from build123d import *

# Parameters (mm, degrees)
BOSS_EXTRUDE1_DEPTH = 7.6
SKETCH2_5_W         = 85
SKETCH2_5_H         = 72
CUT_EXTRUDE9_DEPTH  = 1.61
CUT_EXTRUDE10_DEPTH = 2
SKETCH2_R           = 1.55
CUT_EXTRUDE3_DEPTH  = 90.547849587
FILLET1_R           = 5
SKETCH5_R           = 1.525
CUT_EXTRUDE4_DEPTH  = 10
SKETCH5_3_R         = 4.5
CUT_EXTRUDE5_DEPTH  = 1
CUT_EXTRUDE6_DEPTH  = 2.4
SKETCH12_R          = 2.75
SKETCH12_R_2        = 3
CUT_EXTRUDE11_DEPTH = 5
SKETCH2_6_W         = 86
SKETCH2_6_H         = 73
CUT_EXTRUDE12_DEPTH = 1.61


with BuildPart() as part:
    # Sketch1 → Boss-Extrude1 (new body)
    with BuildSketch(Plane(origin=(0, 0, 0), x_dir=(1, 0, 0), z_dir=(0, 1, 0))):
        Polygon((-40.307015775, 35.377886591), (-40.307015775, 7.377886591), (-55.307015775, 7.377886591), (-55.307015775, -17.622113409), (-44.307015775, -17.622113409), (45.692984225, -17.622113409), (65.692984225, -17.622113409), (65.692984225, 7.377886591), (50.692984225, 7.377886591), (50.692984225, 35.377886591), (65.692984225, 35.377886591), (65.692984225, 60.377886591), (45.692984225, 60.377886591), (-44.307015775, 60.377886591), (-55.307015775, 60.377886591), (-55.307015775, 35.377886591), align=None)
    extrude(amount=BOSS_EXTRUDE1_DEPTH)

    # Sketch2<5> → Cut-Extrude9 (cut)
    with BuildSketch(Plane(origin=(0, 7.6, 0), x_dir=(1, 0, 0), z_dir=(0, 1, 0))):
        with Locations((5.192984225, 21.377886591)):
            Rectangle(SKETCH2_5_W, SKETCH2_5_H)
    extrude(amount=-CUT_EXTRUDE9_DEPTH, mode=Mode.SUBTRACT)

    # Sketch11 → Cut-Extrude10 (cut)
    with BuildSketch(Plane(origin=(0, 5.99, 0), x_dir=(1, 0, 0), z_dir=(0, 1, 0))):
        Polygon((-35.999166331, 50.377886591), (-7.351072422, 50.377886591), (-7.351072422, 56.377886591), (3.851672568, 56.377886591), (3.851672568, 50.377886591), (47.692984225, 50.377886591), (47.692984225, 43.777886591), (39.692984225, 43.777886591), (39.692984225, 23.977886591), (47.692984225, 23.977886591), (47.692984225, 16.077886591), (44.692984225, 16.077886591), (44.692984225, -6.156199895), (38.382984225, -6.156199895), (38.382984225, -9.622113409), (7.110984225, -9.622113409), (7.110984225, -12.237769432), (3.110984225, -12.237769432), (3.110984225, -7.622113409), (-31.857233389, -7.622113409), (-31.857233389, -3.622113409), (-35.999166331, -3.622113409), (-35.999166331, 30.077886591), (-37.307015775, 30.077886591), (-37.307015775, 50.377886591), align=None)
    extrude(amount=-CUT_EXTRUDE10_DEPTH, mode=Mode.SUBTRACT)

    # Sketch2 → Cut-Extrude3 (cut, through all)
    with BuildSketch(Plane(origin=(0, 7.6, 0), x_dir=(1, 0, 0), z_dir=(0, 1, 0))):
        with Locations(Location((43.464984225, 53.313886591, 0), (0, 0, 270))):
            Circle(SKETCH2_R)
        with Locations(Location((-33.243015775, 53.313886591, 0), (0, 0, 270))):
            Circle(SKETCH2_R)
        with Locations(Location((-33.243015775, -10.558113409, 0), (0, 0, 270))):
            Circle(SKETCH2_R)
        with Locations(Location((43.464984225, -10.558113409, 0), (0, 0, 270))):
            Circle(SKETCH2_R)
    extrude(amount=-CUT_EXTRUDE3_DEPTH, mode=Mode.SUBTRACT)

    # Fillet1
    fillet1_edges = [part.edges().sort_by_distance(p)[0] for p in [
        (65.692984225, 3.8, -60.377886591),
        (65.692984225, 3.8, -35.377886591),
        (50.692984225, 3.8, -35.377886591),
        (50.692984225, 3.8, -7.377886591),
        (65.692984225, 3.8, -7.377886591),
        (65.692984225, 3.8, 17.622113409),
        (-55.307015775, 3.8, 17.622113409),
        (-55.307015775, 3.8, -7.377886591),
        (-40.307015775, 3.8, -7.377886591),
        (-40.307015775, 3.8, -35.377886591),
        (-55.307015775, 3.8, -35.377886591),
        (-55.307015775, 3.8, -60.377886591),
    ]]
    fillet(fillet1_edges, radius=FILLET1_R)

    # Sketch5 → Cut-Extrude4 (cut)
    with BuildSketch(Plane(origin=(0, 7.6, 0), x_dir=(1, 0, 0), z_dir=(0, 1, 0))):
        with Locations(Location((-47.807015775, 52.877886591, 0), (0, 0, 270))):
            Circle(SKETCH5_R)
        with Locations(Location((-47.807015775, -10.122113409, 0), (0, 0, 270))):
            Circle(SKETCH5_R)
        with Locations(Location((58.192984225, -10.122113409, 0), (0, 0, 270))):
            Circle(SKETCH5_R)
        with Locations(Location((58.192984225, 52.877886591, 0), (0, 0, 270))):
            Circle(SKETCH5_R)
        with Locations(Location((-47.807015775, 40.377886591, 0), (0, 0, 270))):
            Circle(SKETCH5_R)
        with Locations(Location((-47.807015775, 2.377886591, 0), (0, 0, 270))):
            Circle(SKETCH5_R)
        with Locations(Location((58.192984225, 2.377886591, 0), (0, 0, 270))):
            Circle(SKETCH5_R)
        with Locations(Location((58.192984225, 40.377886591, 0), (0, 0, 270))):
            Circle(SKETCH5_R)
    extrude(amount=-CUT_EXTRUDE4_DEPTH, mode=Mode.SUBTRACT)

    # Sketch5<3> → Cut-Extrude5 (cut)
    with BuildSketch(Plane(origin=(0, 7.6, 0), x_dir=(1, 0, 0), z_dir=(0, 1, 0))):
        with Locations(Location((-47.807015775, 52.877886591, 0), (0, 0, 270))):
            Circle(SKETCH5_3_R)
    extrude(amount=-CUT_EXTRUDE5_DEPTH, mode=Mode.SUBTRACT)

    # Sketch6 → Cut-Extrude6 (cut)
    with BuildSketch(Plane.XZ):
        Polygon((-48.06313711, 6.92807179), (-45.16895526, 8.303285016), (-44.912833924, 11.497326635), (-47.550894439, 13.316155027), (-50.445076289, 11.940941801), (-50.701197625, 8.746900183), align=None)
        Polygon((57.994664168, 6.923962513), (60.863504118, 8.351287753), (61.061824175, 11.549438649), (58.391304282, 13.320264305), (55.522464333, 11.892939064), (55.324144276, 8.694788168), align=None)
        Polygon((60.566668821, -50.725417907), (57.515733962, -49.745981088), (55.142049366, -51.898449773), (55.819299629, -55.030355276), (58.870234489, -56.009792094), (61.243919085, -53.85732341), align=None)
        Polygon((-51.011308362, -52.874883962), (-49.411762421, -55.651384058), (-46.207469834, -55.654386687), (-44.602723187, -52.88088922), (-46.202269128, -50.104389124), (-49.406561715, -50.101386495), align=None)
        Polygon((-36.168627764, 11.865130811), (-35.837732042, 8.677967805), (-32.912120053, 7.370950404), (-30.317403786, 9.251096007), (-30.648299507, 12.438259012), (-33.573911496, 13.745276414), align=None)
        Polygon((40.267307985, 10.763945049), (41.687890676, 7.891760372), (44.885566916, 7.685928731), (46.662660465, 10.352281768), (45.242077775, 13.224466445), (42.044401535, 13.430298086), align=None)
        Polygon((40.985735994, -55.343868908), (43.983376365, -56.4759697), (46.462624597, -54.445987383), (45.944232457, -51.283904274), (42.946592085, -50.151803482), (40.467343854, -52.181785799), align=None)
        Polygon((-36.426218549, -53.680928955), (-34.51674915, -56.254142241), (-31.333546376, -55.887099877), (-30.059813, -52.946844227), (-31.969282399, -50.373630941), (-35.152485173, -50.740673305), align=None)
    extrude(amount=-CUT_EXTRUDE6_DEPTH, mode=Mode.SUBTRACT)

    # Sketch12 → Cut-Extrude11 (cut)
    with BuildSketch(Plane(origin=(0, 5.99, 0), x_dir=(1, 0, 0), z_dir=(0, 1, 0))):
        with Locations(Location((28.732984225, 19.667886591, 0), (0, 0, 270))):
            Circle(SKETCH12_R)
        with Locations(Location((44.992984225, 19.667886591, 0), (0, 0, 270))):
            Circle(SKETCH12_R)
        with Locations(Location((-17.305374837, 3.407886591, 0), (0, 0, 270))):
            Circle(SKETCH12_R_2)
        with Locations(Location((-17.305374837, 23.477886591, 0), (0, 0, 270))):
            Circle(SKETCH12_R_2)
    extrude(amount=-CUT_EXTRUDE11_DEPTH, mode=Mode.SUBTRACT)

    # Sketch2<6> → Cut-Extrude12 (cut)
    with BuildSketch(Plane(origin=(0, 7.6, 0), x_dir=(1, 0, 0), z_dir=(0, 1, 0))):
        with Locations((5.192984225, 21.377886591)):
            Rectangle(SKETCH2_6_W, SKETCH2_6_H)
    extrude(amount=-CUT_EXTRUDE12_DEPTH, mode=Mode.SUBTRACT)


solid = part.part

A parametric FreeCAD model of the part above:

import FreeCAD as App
import Part
import Sketcher
from FreeCAD import Vector


def edges_at(feature, points):
    """Names of the edges that pass closest to the given points."""
    edges = feature.Shape.Edges
    near = lambda p: min(range(len(edges)), key=lambda i: edges[i].distToShape(Part.Vertex(*p))[0])
    return sorted({f"Edge{near(p) + 1}" for p in points})

doc = App.newDocument("Part")
body = doc.addObject("PartDesign::Body", "Body")

# Sketch on XZ plane
sketch1 = doc.addObject("Sketcher::SketchObject", "Sketch")
body.addObject(sketch1)
sketch1.AttachmentSupport = (doc.XZ_Plane, [""])
sketch1.MapMode = "FlatFace"
sketch1.addGeometry(Part.LineSegment(Vector(-40.307016, -35.377887, 0), Vector(-40.307016, -7.377887, 0)), False)
sketch1.addGeometry(Part.LineSegment(Vector(-40.307016, -7.377887, 0), Vector(-55.307016, -7.377887, 0)), False)
sketch1.addGeometry(Part.LineSegment(Vector(-55.307016, -7.377887, 0), Vector(-55.307016, 17.622113, 0)), False)
sketch1.addGeometry(Part.LineSegment(Vector(-55.307016, 17.622113, 0), Vector(65.692984, 17.622113, 0)), False)
sketch1.addGeometry(Part.LineSegment(Vector(65.692984, 17.622113, 0), Vector(65.692984, -7.377887, 0)), False)
sketch1.addGeometry(Part.LineSegment(Vector(65.692984, -7.377887, 0), Vector(50.692984, -7.377887, 0)), False)
sketch1.addGeometry(Part.LineSegment(Vector(50.692984, -7.377887, 0), Vector(50.692984, -35.377887, 0)), False)
sketch1.addGeometry(Part.LineSegment(Vector(50.692984, -35.377887, 0), Vector(65.692984, -35.377887, 0)), False)
sketch1.addGeometry(Part.LineSegment(Vector(65.692984, -35.377887, 0), Vector(65.692984, -60.377887, 0)), False)
sketch1.addGeometry(Part.LineSegment(Vector(65.692984, -60.377887, 0), Vector(-55.307016, -60.377887, 0)), False)
sketch1.addGeometry(Part.LineSegment(Vector(-55.307016, -60.377887, 0), Vector(-55.307016, -35.377887, 0)), False)
sketch1.addGeometry(Part.LineSegment(Vector(-55.307016, -35.377887, 0), Vector(-40.307016, -35.377887, 0)), False)
sketch1.addConstraint(Sketcher.Constraint("Coincident", 0, 2, 1, 1))
sketch1.addConstraint(Sketcher.Constraint("Coincident", 1, 2, 2, 1))
sketch1.addConstraint(Sketcher.Constraint("Coincident", 2, 2, 3, 1))
sketch1.addConstraint(Sketcher.Constraint("Coincident", 3, 2, 4, 1))
sketch1.addConstraint(Sketcher.Constraint("Coincident", 4, 2, 5, 1))
sketch1.addConstraint(Sketcher.Constraint("Coincident", 5, 2, 6, 1))
sketch1.addConstraint(Sketcher.Constraint("Coincident", 6, 2, 7, 1))
sketch1.addConstraint(Sketcher.Constraint("Coincident", 7, 2, 8, 1))
sketch1.addConstraint(Sketcher.Constraint("Coincident", 8, 2, 9, 1))
sketch1.addConstraint(Sketcher.Constraint("Coincident", 9, 2, 10, 1))
sketch1.addConstraint(Sketcher.Constraint("Coincident", 10, 2, 11, 1))
sketch1.addConstraint(Sketcher.Constraint("Coincident", 11, 2, 0, 1))
sketch1.addConstraint(Sketcher.Constraint("Vertical", 0))
sketch1.addConstraint(Sketcher.Constraint("Horizontal", 1))
sketch1.addConstraint(Sketcher.Constraint("Vertical", 2))
sketch1.addConstraint(Sketcher.Constraint("Horizontal", 3))
sketch1.addConstraint(Sketcher.Constraint("Vertical", 4))
sketch1.addConstraint(Sketcher.Constraint("Horizontal", 5))
sketch1.addConstraint(Sketcher.Constraint("Vertical", 6))
sketch1.addConstraint(Sketcher.Constraint("Horizontal", 7))
sketch1.addConstraint(Sketcher.Constraint("Vertical", 8))
sketch1.addConstraint(Sketcher.Constraint("Horizontal", 9))
sketch1.addConstraint(Sketcher.Constraint("Vertical", 10))
sketch1.addConstraint(Sketcher.Constraint("Horizontal", 11))
sketch1.addConstraint(Sketcher.Constraint("Horizontal", 1, 2, 4, 2))
sketch1.addConstraint(Sketcher.Constraint("Horizontal", 7, 2, 10, 2))
sketch1.addConstraint(Sketcher.Constraint("Vertical", 4, 2, 7, 2))
sketch1.addConstraint(Sketcher.Constraint("Vertical", 2, 2, 9, 2))
sketch1.addConstraint(Sketcher.Constraint("Equal", 1, 5))
sketch1.addConstraint(Sketcher.Constraint("Equal", 4, 8))
sketch1.addConstraint(Sketcher.Constraint("DistanceX", 1, 2, 1, 1, 15.0))
sketch1.addConstraint(Sketcher.Constraint("DistanceX", 3, 1, 3, 2, 121.0))
sketch1.addConstraint(Sketcher.Constraint("DistanceY", 0, 1, 0, 2, 28.0))
sketch1.addConstraint(Sketcher.Constraint("DistanceY", 2, 1, 2, 2, 25.0))
sketch1.addConstraint(Sketcher.Constraint("DistanceX", 0, 2, -1, 1, 40.307016))
sketch1.addConstraint(Sketcher.Constraint("DistanceY", 0, 2, -1, 1, 7.377887))
pad1 = doc.addObject("PartDesign::Pad", "Pad")
body.addObject(pad1)
pad1.Profile = sketch1
pad1.Length = 7.6
pad1.Reversed = True

# Sketch on XZ plane
sketch2 = doc.addObject("Sketcher::SketchObject", "Sketch001")
body.addObject(sketch2)
sketch2.AttachmentSupport = (doc.XZ_Plane, [""])
sketch2.MapMode = "FlatFace"
sketch2.AttachmentOffset = App.Placement(Vector(0, 0, -7.6), App.Rotation())
sketch2.addGeometry(Part.LineSegment(Vector(-37.307016, -57.377887, 0), Vector(-37.307016, 14.622113, 0)), False)
sketch2.addGeometry(Part.LineSegment(Vector(-37.307016, 14.622113, 0), Vector(47.692984, 14.622113, 0)), False)
sketch2.addGeometry(Part.LineSegment(Vector(47.692984, 14.622113, 0), Vector(47.692984, -57.377887, 0)), False)
sketch2.addGeometry(Part.LineSegment(Vector(47.692984, -57.377887, 0), Vector(-37.307016, -57.377887, 0)), False)
sketch2.addConstraint(Sketcher.Constraint("Coincident", 0, 2, 1, 1))
sketch2.addConstraint(Sketcher.Constraint("Coincident", 1, 2, 2, 1))
sketch2.addConstraint(Sketcher.Constraint("Coincident", 2, 2, 3, 1))
sketch2.addConstraint(Sketcher.Constraint("Coincident", 3, 2, 0, 1))
sketch2.addConstraint(Sketcher.Constraint("Vertical", 0))
sketch2.addConstraint(Sketcher.Constraint("Horizontal", 1))
sketch2.addConstraint(Sketcher.Constraint("Vertical", 2))
sketch2.addConstraint(Sketcher.Constraint("Horizontal", 3))
sketch2.addConstraint(Sketcher.Constraint("DistanceX", 1, 1, 1, 2, 85.0))
sketch2.addConstraint(Sketcher.Constraint("DistanceY", 0, 1, 0, 2, 72.0))
sketch2.addConstraint(Sketcher.Constraint("DistanceX", 0, 2, -1, 1, 37.307016))
sketch2.addConstraint(Sketcher.Constraint("DistanceY", -1, 1, 0, 2, 14.622113))
pocket1 = doc.addObject("PartDesign::Pocket", "Pocket")
body.addObject(pocket1)
pocket1.Profile = sketch2
pocket1.Length = 1.61
pocket1.Reversed = True

# Sketch on XZ plane
sketch3 = doc.addObject("Sketcher::SketchObject", "Sketch002")
body.addObject(sketch3)
sketch3.AttachmentSupport = (doc.XZ_Plane, [""])
sketch3.MapMode = "FlatFace"
sketch3.AttachmentOffset = App.Placement(Vector(0, 0, -5.99), App.Rotation())
sketch3.addGeometry(Part.LineSegment(Vector(-7.351072, -50.377887, 0), Vector(-37.307016, -50.377887, 0)), False)
sketch3.addGeometry(Part.LineSegment(Vector(-37.307016, -50.377887, 0), Vector(-37.307016, -30.077887, 0)), False)
sketch3.addGeometry(Part.LineSegment(Vector(-37.307016, -30.077887, 0), Vector(-35.999166, -30.077887, 0)), False)
sketch3.addGeometry(Part.LineSegment(Vector(-35.999166, -30.077887, 0), Vector(-35.999166, 3.622113, 0)), False)
sketch3.addGeometry(Part.LineSegment(Vector(-35.999166, 3.622113, 0), Vector(-31.857233, 3.622113, 0)), False)
sketch3.addGeometry(Part.LineSegment(Vector(-31.857233, 3.622113, 0), Vector(-31.857233, 7.622113, 0)), False)
sketch3.addGeometry(Part.LineSegment(Vector(-31.857233, 7.622113, 0), Vector(3.110984, 7.622113, 0)), False)
sketch3.addGeometry(Part.LineSegment(Vector(3.110984, 7.622113, 0), Vector(3.110984, 12.237769, 0)), False)
sketch3.addGeometry(Part.LineSegment(Vector(3.110984, 12.237769, 0), Vector(7.110984, 12.237769, 0)), False)
sketch3.addGeometry(Part.LineSegment(Vector(7.110984, 12.237769, 0), Vector(7.110984, 9.622113, 0)), False)
sketch3.addGeometry(Part.LineSegment(Vector(7.110984, 9.622113, 0), Vector(38.382984, 9.622113, 0)), False)
sketch3.addGeometry(Part.LineSegment(Vector(38.382984, 9.622113, 0), Vector(38.382984, 6.1562, 0)), False)
sketch3.addGeometry(Part.LineSegment(Vector(38.382984, 6.1562, 0), Vector(44.692984, 6.1562, 0)), False)
sketch3.addGeometry(Part.LineSegment(Vector(44.692984, 6.1562, 0), Vector(44.692984, -16.077887, 0)), False)
sketch3.addGeometry(Part.LineSegment(Vector(44.692984, -16.077887, 0), Vector(47.692984, -16.077887, 0)), False)
sketch3.addGeometry(Part.LineSegment(Vector(47.692984, -16.077887, 0), Vector(47.692984, -23.977887, 0)), False)
sketch3.addGeometry(Part.LineSegment(Vector(47.692984, -23.977887, 0), Vector(39.692984, -23.977887, 0)), False)
sketch3.addGeometry(Part.LineSegment(Vector(39.692984, -23.977887, 0), Vector(39.692984, -43.777887, 0)), False)
sketch3.addGeometry(Part.LineSegment(Vector(39.692984, -43.777887, 0), Vector(47.692984, -43.777887, 0)), False)
sketch3.addGeometry(Part.LineSegment(Vector(47.692984, -43.777887, 0), Vector(47.692984, -50.377887, 0)), False)
sketch3.addGeometry(Part.LineSegment(Vector(47.692984, -50.377887, 0), Vector(3.851673, -50.377887, 0)), False)
sketch3.addGeometry(Part.LineSegment(Vector(3.851673, -50.377887, 0), Vector(3.851673, -56.377887, 0)), False)
sketch3.addGeometry(Part.LineSegment(Vector(3.851673, -56.377887, 0), Vector(-7.351072, -56.377887, 0)), False)
sketch3.addGeometry(Part.LineSegment(Vector(-7.351072, -56.377887, 0), Vector(-7.351072, -50.377887, 0)), False)
sketch3.addConstraint(Sketcher.Constraint("Coincident", 0, 2, 1, 1))
sketch3.addConstraint(Sketcher.Constraint("Coincident", 1, 2, 2, 1))
sketch3.addConstraint(Sketcher.Constraint("Coincident", 2, 2, 3, 1))
sketch3.addConstraint(Sketcher.Constraint("Coincident", 3, 2, 4, 1))
sketch3.addConstraint(Sketcher.Constraint("Coincident", 4, 2, 5, 1))
sketch3.addConstraint(Sketcher.Constraint("Coincident", 5, 2, 6, 1))
sketch3.addConstraint(Sketcher.Constraint("Coincident", 6, 2, 7, 1))
sketch3.addConstraint(Sketcher.Constraint("Coincident", 7, 2, 8, 1))
sketch3.addConstraint(Sketcher.Constraint("Coincident", 8, 2, 9, 1))
sketch3.addConstraint(Sketcher.Constraint("Coincident", 9, 2, 10, 1))
sketch3.addConstraint(Sketcher.Constraint("Coincident", 10, 2, 11, 1))
sketch3.addConstraint(Sketcher.Constraint("Coincident", 11, 2, 12, 1))
sketch3.addConstraint(Sketcher.Constraint("Coincident", 12, 2, 13, 1))
sketch3.addConstraint(Sketcher.Constraint("Coincident", 13, 2, 14, 1))
sketch3.addConstraint(Sketcher.Constraint("Coincident", 14, 2, 15, 1))
sketch3.addConstraint(Sketcher.Constraint("Coincident", 15, 2, 16, 1))
sketch3.addConstraint(Sketcher.Constraint("Coincident", 16, 2, 17, 1))
sketch3.addConstraint(Sketcher.Constraint("Coincident", 17, 2, 18, 1))
sketch3.addConstraint(Sketcher.Constraint("Coincident", 18, 2, 19, 1))
sketch3.addConstraint(Sketcher.Constraint("Coincident", 19, 2, 20, 1))
sketch3.addConstraint(Sketcher.Constraint("Coincident", 20, 2, 21, 1))
sketch3.addConstraint(Sketcher.Constraint("Coincident", 21, 2, 22, 1))
sketch3.addConstraint(Sketcher.Constraint("Coincident", 22, 2, 23, 1))
sketch3.addConstraint(Sketcher.Constraint("Coincident", 23, 2, 0, 1))
sketch3.addConstraint(Sketcher.Constraint("Horizontal", 0))
sketch3.addConstraint(Sketcher.Constraint("Vertical", 1))
sketch3.addConstraint(Sketcher.Constraint("Horizontal", 2))
sketch3.addConstraint(Sketcher.Constraint("Vertical", 3))
sketch3.addConstraint(Sketcher.Constraint("Horizontal", 4))
sketch3.addConstraint(Sketcher.Constraint("Vertical", 5))
sketch3.addConstraint(Sketcher.Constraint("Horizontal", 6))
sketch3.addConstraint(Sketcher.Constraint("Vertical", 7))
sketch3.addConstraint(Sketcher.Constraint("Horizontal", 8))
sketch3.addConstraint(Sketcher.Constraint("Vertical", 9))
sketch3.addConstraint(Sketcher.Constraint("Horizontal", 10))
sketch3.addConstraint(Sketcher.Constraint("Vertical", 11))
sketch3.addConstraint(Sketcher.Constraint("Horizontal", 12))
sketch3.addConstraint(Sketcher.Constraint("Vertical", 13))
sketch3.addConstraint(Sketcher.Constraint("Horizontal", 14))
sketch3.addConstraint(Sketcher.Constraint("Vertical", 15))
sketch3.addConstraint(Sketcher.Constraint("Horizontal", 16))
sketch3.addConstraint(Sketcher.Constraint("Vertical", 17))
sketch3.addConstraint(Sketcher.Constraint("Horizontal", 18))
sketch3.addConstraint(Sketcher.Constraint("Vertical", 19))
sketch3.addConstraint(Sketcher.Constraint("Horizontal", 20))
sketch3.addConstraint(Sketcher.Constraint("Vertical", 21))
sketch3.addConstraint(Sketcher.Constraint("Horizontal", 22))
sketch3.addConstraint(Sketcher.Constraint("Vertical", 23))
sketch3.addConstraint(Sketcher.Constraint("Horizontal", 0, 2, 19, 2))
sketch3.addConstraint(Sketcher.Constraint("Vertical", 15, 2, 18, 2))
sketch3.addConstraint(Sketcher.Constraint("Equal", 8, 5))
sketch3.addConstraint(Sketcher.Constraint("DistanceX", 8, 1, 8, 2, 4.0))
sketch3.addConstraint(Sketcher.Constraint("DistanceX", 14, 1, 14, 2, 3.0))
sketch3.addConstraint(Sketcher.Constraint("DistanceX", 16, 2, 16, 1, 8.0))
sketch3.addConstraint(Sketcher.Constraint("DistanceY", 21, 2, 21, 1, 6.0))
sketch3.addConstraint(Sketcher.Constraint("DistanceY", 1, 1, 1, 2, 20.3))
sketch3.addConstraint(Sketcher.Constraint("DistanceY", 3, 1, 3, 2, 33.7))
sketch3.addConstraint(Sketcher.Constraint("DistanceY", 15, 2, 15, 1, 7.9))
sketch3.addConstraint(Sketcher.Constraint("DistanceY", 17, 2, 17, 1, 19.8))
sketch3.addConstraint(Sketcher.Constraint("DistanceY", 19, 2, 19, 1, 6.6))
sketch3.addConstraint(Sketcher.Constraint("DistanceY", 6, 2, 9, 2, 2.0))
sketch3.addConstraint(Sketcher.Constraint("DistanceX", 12, 1, 12, 2, 6.31))
sketch3.addConstraint(Sketcher.Constraint("DistanceX", 10, 1, 10, 2, 31.272))
sketch3.addConstraint(Sketcher.Constraint("DistanceX", 1, 2, 6, 2, 40.418))
sketch3.addConstraint(Sketcher.Constraint("DistanceX", 2, 1, 2, 2, 1.307849))
sketch3.addConstraint(Sketcher.Constraint("DistanceX", 20, 2, 20, 1, 43.841312))
sketch3.addConstraint(Sketcher.Constraint("DistanceY", -1, 1, 11, 2, 6.1562))
sketch3.addConstraint(Sketcher.Constraint("DistanceX", 0, 2, 0, 1, 29.955943))
sketch3.addConstraint(Sketcher.Constraint("DistanceX", 4, 1, 4, 2, 4.141933))
sketch3.addConstraint(Sketcher.Constraint("DistanceY", 7, 1, 7, 2, 4.615656))
sketch3.addConstraint(Sketcher.Constraint("DistanceY", 11, 2, 11, 1, 3.465914))
sketch3.addConstraint(Sketcher.Constraint("DistanceX", 0, 2, -1, 1, 37.307016))
pocket2 = doc.addObject("PartDesign::Pocket", "Pocket001")
body.addObject(pocket2)
pocket2.Profile = sketch3
pocket2.Length = 2
pocket2.Reversed = True

# Sketch on XZ plane
sketch4 = doc.addObject("Sketcher::SketchObject", "Sketch003")
body.addObject(sketch4)
sketch4.AttachmentSupport = (doc.XZ_Plane, [""])
sketch4.MapMode = "FlatFace"
sketch4.AttachmentOffset = App.Placement(Vector(0, 0, -7.6), App.Rotation())
sketch4.addGeometry(Part.Circle(Vector(43.464984, -53.313887, 0), Vector(0, 0, 1), 1.55), False)
sketch4.addGeometry(Part.Circle(Vector(-33.243016, -53.313887, 0), Vector(0, 0, 1), 1.55), False)
sketch4.addGeometry(Part.Circle(Vector(-33.243016, 10.558113, 0), Vector(0, 0, 1), 1.55), False)
sketch4.addGeometry(Part.Circle(Vector(43.464984, 10.558113, 0), Vector(0, 0, 1), 1.55), False)
sketch4.addConstraint(Sketcher.Constraint("Equal", 0, 1))
sketch4.addConstraint(Sketcher.Constraint("Equal", 1, 2))
sketch4.addConstraint(Sketcher.Constraint("Equal", 2, 3))
sketch4.addConstraint(Sketcher.Constraint("Horizontal", 0, 3, 1, 3))
sketch4.addConstraint(Sketcher.Constraint("Horizontal", 2, 3, 3, 3))
sketch4.addConstraint(Sketcher.Constraint("Vertical", 1, 3, 2, 3))
sketch4.addConstraint(Sketcher.Constraint("Vertical", 0, 3, 3, 3))
sketch4.addConstraint(Sketcher.Constraint("Diameter", 0, 3.1))
sketch4.addConstraint(Sketcher.Constraint("DistanceX", 1, 3, 0, 3, 76.708))
sketch4.addConstraint(Sketcher.Constraint("DistanceY", 1, 3, 2, 3, 63.872))
sketch4.addConstraint(Sketcher.Constraint("DistanceX", -1, 1, 0, 3, 43.464984))
sketch4.addConstraint(Sketcher.Constraint("DistanceY", 0, 3, -1, 1, 53.313887))
pocket3 = doc.addObject("PartDesign::Pocket", "Pocket002")
body.addObject(pocket3)
pocket3.Profile = sketch4
pocket3.Type = "ThroughAll"
pocket3.Reversed = True
doc.recompute()

fillet = doc.addObject("PartDesign::Fillet", "Fillet")
body.addObject(fillet)
fillet.Base = (pocket3, edges_at(pocket3, [
    (65.693, 3.8, -60.378),
    (65.693, 3.8, -35.378),
    (50.693, 3.8, -35.378),
    (50.693, 3.8, -7.378),
    (65.693, 3.8, -7.378),
    (65.693, 3.8, 17.622),
    (-55.307, 3.8, 17.622),
    (-55.307, 3.8, -7.378),
    (-40.307, 3.8, -7.378),
    (-40.307, 3.8, -35.378),
    (-55.307, 3.8, -35.378),
    (-55.307, 3.8, -60.378),
]))
fillet.Radius = 5

# Sketch on XZ plane
sketch5 = doc.addObject("Sketcher::SketchObject", "Sketch004")
body.addObject(sketch5)
sketch5.AttachmentSupport = (doc.XZ_Plane, [""])
sketch5.MapMode = "FlatFace"
sketch5.AttachmentOffset = App.Placement(Vector(0, 0, -7.6), App.Rotation())
sketch5.addGeometry(Part.Circle(Vector(-47.807016, -52.877887, 0), Vector(0, 0, 1), 1.525), False)
sketch5.addGeometry(Part.Circle(Vector(-47.807016, 10.122113, 0), Vector(0, 0, 1), 1.525), False)
sketch5.addGeometry(Part.Circle(Vector(58.192984, 10.122113, 0), Vector(0, 0, 1), 1.525), False)
sketch5.addGeometry(Part.Circle(Vector(58.192984, -52.877887, 0), Vector(0, 0, 1), 1.525), False)
sketch5.addGeometry(Part.Circle(Vector(-47.807016, -40.377887, 0), Vector(0, 0, 1), 1.525), False)
sketch5.addGeometry(Part.Circle(Vector(-47.807016, -2.377887, 0), Vector(0, 0, 1), 1.525), False)
sketch5.addGeometry(Part.Circle(Vector(58.192984, -2.377887, 0), Vector(0, 0, 1), 1.525), False)
sketch5.addGeometry(Part.Circle(Vector(58.192984, -40.377887, 0), Vector(0, 0, 1), 1.525), False)
sketch5.addConstraint(Sketcher.Constraint("Equal", 0, 1))
sketch5.addConstraint(Sketcher.Constraint("Equal", 1, 2))
sketch5.addConstraint(Sketcher.Constraint("Equal", 2, 3))
sketch5.addConstraint(Sketcher.Constraint("Equal", 3, 4))
sketch5.addConstraint(Sketcher.Constraint("Equal", 4, 5))
sketch5.addConstraint(Sketcher.Constraint("Equal", 5, 6))
sketch5.addConstraint(Sketcher.Constraint("Equal", 6, 7))
sketch5.addConstraint(Sketcher.Constraint("Horizontal", 1, 3, 2, 3))
sketch5.addConstraint(Sketcher.Constraint("Horizontal", 0, 3, 3, 3))
sketch5.addConstraint(Sketcher.Constraint("Horizontal", 5, 3, 6, 3))
sketch5.addConstraint(Sketcher.Constraint("Horizontal", 4, 3, 7, 3))
sketch5.addConstraint(Sketcher.Constraint("Vertical", 0, 3, 1, 3))
sketch5.addConstraint(Sketcher.Constraint("Vertical", 2, 3, 3, 3))
sketch5.addConstraint(Sketcher.Constraint("Vertical", 1, 3, 4, 3))
sketch5.addConstraint(Sketcher.Constraint("Vertical", 4, 3, 5, 3))
sketch5.addConstraint(Sketcher.Constraint("Vertical", 3, 3, 6, 3))
sketch5.addConstraint(Sketcher.Constraint("Vertical", 6, 3, 7, 3))
sketch5.addConstraint(Sketcher.Constraint("Diameter", 0, 3.05))
sketch5.addConstraint(Sketcher.Constraint("DistanceY", 0, 3, 1, 3, 63.0))
sketch5.addConstraint(Sketcher.Constraint("DistanceX", 1, 3, 2, 3, 106.0))
sketch5.addConstraint(Sketcher.Constraint("DistanceY", 4, 3, 5, 3, 38.0))
sketch5.addConstraint(Sketcher.Constraint("DistanceY", 0, 3, 4, 3, 12.5))
sketch5.addConstraint(Sketcher.Constraint("DistanceX", 0, 3, -1, 1, 47.807016))
sketch5.addConstraint(Sketcher.Constraint("DistanceY", 0, 3, -1, 1, 52.877887))
pocket4 = doc.addObject("PartDesign::Pocket", "Pocket003")
body.addObject(pocket4)
pocket4.Profile = sketch5
pocket4.Length = 10
pocket4.Reversed = True

# Sketch on XZ plane
sketch6 = doc.addObject("Sketcher::SketchObject", "Sketch005")
body.addObject(sketch6)
sketch6.AttachmentSupport = (doc.XZ_Plane, [""])
sketch6.MapMode = "FlatFace"
sketch6.AttachmentOffset = App.Placement(Vector(0, 0, -7.6), App.Rotation())
sketch6.addGeometry(Part.Circle(Vector(-47.807016, -52.877887, 0), Vector(0, 0, 1), 4.5), False)
sketch6.addConstraint(Sketcher.Constraint("Diameter", 0, 9.0))
sketch6.addConstraint(Sketcher.Constraint("DistanceX", 0, 3, -1, 1, 47.807016))
sketch6.addConstraint(Sketcher.Constraint("DistanceY", 0, 3, -1, 1, 52.877887))
pocket5 = doc.addObject("PartDesign::Pocket", "Pocket004")
body.addObject(pocket5)
pocket5.Profile = sketch6
pocket5.Length = 1
pocket5.Reversed = True

# Sketch on XZ plane
sketch7 = doc.addObject("Sketcher::SketchObject", "Sketch006")
body.addObject(sketch7)
sketch7.AttachmentSupport = (doc.XZ_Plane, [""])
sketch7.MapMode = "FlatFace"
sketch7.addGeometry(Part.LineSegment(Vector(-48.063137, 6.928072, 0), Vector(-45.168955, 8.303285, 0)), False)
sketch7.addGeometry(Part.LineSegment(Vector(-45.168955, 8.303285, 0), Vector(-44.912834, 11.497327, 0)), False)
sketch7.addGeometry(Part.LineSegment(Vector(-44.912834, 11.497327, 0), Vector(-47.550894, 13.316155, 0)), False)
sketch7.addGeometry(Part.LineSegment(Vector(-47.550894, 13.316155, 0), Vector(-50.445076, 11.940942, 0)), False)
sketch7.addGeometry(Part.LineSegment(Vector(-50.445076, 11.940942, 0), Vector(-50.701198, 8.7469, 0)), False)
sketch7.addGeometry(Part.LineSegment(Vector(-50.701198, 8.7469, 0), Vector(-48.063137, 6.928072, 0)), False)
sketch7.addGeometry(Part.LineSegment(Vector(57.994664, 6.923963, 0), Vector(60.863504, 8.351288, 0)), False)
sketch7.addGeometry(Part.LineSegment(Vector(60.863504, 8.351288, 0), Vector(61.061824, 11.549439, 0)), False)
sketch7.addGeometry(Part.LineSegment(Vector(61.061824, 11.549439, 0), Vector(58.391304, 13.320264, 0)), False)
sketch7.addGeometry(Part.LineSegment(Vector(58.391304, 13.320264, 0), Vector(55.522464, 11.892939, 0)), False)
sketch7.addGeometry(Part.LineSegment(Vector(55.522464, 11.892939, 0), Vector(55.324144, 8.694788, 0)), False)
sketch7.addGeometry(Part.LineSegment(Vector(55.324144, 8.694788, 0), Vector(57.994664, 6.923963, 0)), False)
sketch7.addGeometry(Part.LineSegment(Vector(60.566669, -50.725418, 0), Vector(57.515734, -49.745981, 0)), False)
sketch7.addGeometry(Part.LineSegment(Vector(57.515734, -49.745981, 0), Vector(55.142049, -51.89845, 0)), False)
sketch7.addGeometry(Part.LineSegment(Vector(55.142049, -51.89845, 0), Vector(55.8193, -55.030355, 0)), False)
sketch7.addGeometry(Part.LineSegment(Vector(55.8193, -55.030355, 0), Vector(58.870234, -56.009792, 0)), False)
sketch7.addGeometry(Part.LineSegment(Vector(58.870234, -56.009792, 0), Vector(61.243919, -53.857323, 0)), False)
sketch7.addGeometry(Part.LineSegment(Vector(61.243919, -53.857323, 0), Vector(60.566669, -50.725418, 0)), False)
sketch7.addGeometry(Part.LineSegment(Vector(-51.011308, -52.874884, 0), Vector(-49.411762, -55.651384, 0)), False)
sketch7.addGeometry(Part.LineSegment(Vector(-49.411762, -55.651384, 0), Vector(-46.20747, -55.654387, 0)), False)
sketch7.addGeometry(Part.LineSegment(Vector(-46.20747, -55.654387, 0), Vector(-44.602723, -52.880889, 0)), False)
sketch7.addGeometry(Part.LineSegment(Vector(-44.602723, -52.880889, 0), Vector(-46.202269, -50.104389, 0)), False)
sketch7.addGeometry(Part.LineSegment(Vector(-46.202269, -50.104389, 0), Vector(-49.406562, -50.101386, 0)), False)
sketch7.addGeometry(Part.LineSegment(Vector(-49.406562, -50.101386, 0), Vector(-51.011308, -52.874884, 0)), False)
sketch7.addGeometry(Part.LineSegment(Vector(-36.168628, 11.865131, 0), Vector(-35.837732, 8.677968, 0)), False)
sketch7.addGeometry(Part.LineSegment(Vector(-35.837732, 8.677968, 0), Vector(-32.91212, 7.37095, 0)), False)
sketch7.addGeometry(Part.LineSegment(Vector(-32.91212, 7.37095, 0), Vector(-30.317404, 9.251096, 0)), False)
sketch7.addGeometry(Part.LineSegment(Vector(-30.317404, 9.251096, 0), Vector(-30.6483, 12.438259, 0)), False)
sketch7.addGeometry(Part.LineSegment(Vector(-30.6483, 12.438259, 0), Vector(-33.573911, 13.745276, 0)), False)
sketch7.addGeometry(Part.LineSegment(Vector(-33.573911, 13.745276, 0), Vector(-36.168628, 11.865131, 0)), False)
sketch7.addGeometry(Part.LineSegment(Vector(40.267308, 10.763945, 0), Vector(41.687891, 7.89176, 0)), False)
sketch7.addGeometry(Part.LineSegment(Vector(41.687891, 7.89176, 0), Vector(44.885567, 7.685929, 0)), False)
sketch7.addGeometry(Part.LineSegment(Vector(44.885567, 7.685929, 0), Vector(46.66266, 10.352282, 0)), False)
sketch7.addGeometry(Part.LineSegment(Vector(46.66266, 10.352282, 0), Vector(45.242078, 13.224466, 0)), False)
sketch7.addGeometry(Part.LineSegment(Vector(45.242078, 13.224466, 0), Vector(42.044402, 13.430298, 0)), False)
sketch7.addGeometry(Part.LineSegment(Vector(42.044402, 13.430298, 0), Vector(40.267308, 10.763945, 0)), False)
sketch7.addGeometry(Part.LineSegment(Vector(40.985736, -55.343869, 0), Vector(43.983376, -56.47597, 0)), False)
sketch7.addGeometry(Part.LineSegment(Vector(43.983376, -56.47597, 0), Vector(46.462625, -54.445987, 0)), False)
sketch7.addGeometry(Part.LineSegment(Vector(46.462625, -54.445987, 0), Vector(45.944232, -51.283904, 0)), False)
sketch7.addGeometry(Part.LineSegment(Vector(45.944232, -51.283904, 0), Vector(42.946592, -50.151803, 0)), False)
sketch7.addGeometry(Part.LineSegment(Vector(42.946592, -50.151803, 0), Vector(40.467344, -52.181786, 0)), False)
sketch7.addGeometry(Part.LineSegment(Vector(40.467344, -52.181786, 0), Vector(40.985736, -55.343869, 0)), False)
sketch7.addGeometry(Part.LineSegment(Vector(-36.426219, -53.680929, 0), Vector(-34.516749, -56.254142, 0)), False)
sketch7.addGeometry(Part.LineSegment(Vector(-34.516749, -56.254142, 0), Vector(-31.333546, -55.8871, 0)), False)
sketch7.addGeometry(Part.LineSegment(Vector(-31.333546, -55.8871, 0), Vector(-30.059813, -52.946844, 0)), False)
sketch7.addGeometry(Part.LineSegment(Vector(-30.059813, -52.946844, 0), Vector(-31.969282, -50.373631, 0)), False)
sketch7.addGeometry(Part.LineSegment(Vector(-31.969282, -50.373631, 0), Vector(-35.152485, -50.740673, 0)), False)
sketch7.addGeometry(Part.LineSegment(Vector(-35.152485, -50.740673, 0), Vector(-36.426219, -53.680929, 0)), False)
sketch7.addConstraint(Sketcher.Constraint("Coincident", 0, 2, 1, 1))
sketch7.addConstraint(Sketcher.Constraint("Coincident", 1, 2, 2, 1))
sketch7.addConstraint(Sketcher.Constraint("Coincident", 2, 2, 3, 1))
sketch7.addConstraint(Sketcher.Constraint("Coincident", 3, 2, 4, 1))
sketch7.addConstraint(Sketcher.Constraint("Coincident", 4, 2, 5, 1))
sketch7.addConstraint(Sketcher.Constraint("Coincident", 5, 2, 0, 1))
sketch7.addConstraint(Sketcher.Constraint("Coincident", 6, 2, 7, 1))
sketch7.addConstraint(Sketcher.Constraint("Coincident", 7, 2, 8, 1))
sketch7.addConstraint(Sketcher.Constraint("Coincident", 8, 2, 9, 1))
sketch7.addConstraint(Sketcher.Constraint("Coincident", 9, 2, 10, 1))
sketch7.addConstraint(Sketcher.Constraint("Coincident", 10, 2, 11, 1))
sketch7.addConstraint(Sketcher.Constraint("Coincident", 11, 2, 6, 1))
sketch7.addConstraint(Sketcher.Constraint("Coincident", 12, 2, 13, 1))
sketch7.addConstraint(Sketcher.Constraint("Coincident", 13, 2, 14, 1))
sketch7.addConstraint(Sketcher.Constraint("Coincident", 14, 2, 15, 1))
sketch7.addConstraint(Sketcher.Constraint("Coincident", 15, 2, 16, 1))
sketch7.addConstraint(Sketcher.Constraint("Coincident", 16, 2, 17, 1))
sketch7.addConstraint(Sketcher.Constraint("Coincident", 17, 2, 12, 1))
sketch7.addConstraint(Sketcher.Constraint("Coincident", 18, 2, 19, 1))
sketch7.addConstraint(Sketcher.Constraint("Coincident", 19, 2, 20, 1))
sketch7.addConstraint(Sketcher.Constraint("Coincident", 20, 2, 21, 1))
sketch7.addConstraint(Sketcher.Constraint("Coincident", 21, 2, 22, 1))
sketch7.addConstraint(Sketcher.Constraint("Coincident", 22, 2, 23, 1))
sketch7.addConstraint(Sketcher.Constraint("Coincident", 23, 2, 18, 1))
sketch7.addConstraint(Sketcher.Constraint("Coincident", 24, 2, 25, 1))
sketch7.addConstraint(Sketcher.Constraint("Coincident", 25, 2, 26, 1))
sketch7.addConstraint(Sketcher.Constraint("Coincident", 26, 2, 27, 1))
sketch7.addConstraint(Sketcher.Constraint("Coincident", 27, 2, 28, 1))
sketch7.addConstraint(Sketcher.Constraint("Coincident", 28, 2, 29, 1))
sketch7.addConstraint(Sketcher.Constraint("Coincident", 29, 2, 24, 1))
sketch7.addConstraint(Sketcher.Constraint("Coincident", 30, 2, 31, 1))
sketch7.addConstraint(Sketcher.Constraint("Coincident", 31, 2, 32, 1))
sketch7.addConstraint(Sketcher.Constraint("Coincident", 32, 2, 33, 1))
sketch7.addConstraint(Sketcher.Constraint("Coincident", 33, 2, 34, 1))
sketch7.addConstraint(Sketcher.Constraint("Coincident", 34, 2, 35, 1))
sketch7.addConstraint(Sketcher.Constraint("Coincident", 35, 2, 30, 1))
sketch7.addConstraint(Sketcher.Constraint("Coincident", 36, 2, 37, 1))
sketch7.addConstraint(Sketcher.Constraint("Coincident", 37, 2, 38, 1))
sketch7.addConstraint(Sketcher.Constraint("Coincident", 38, 2, 39, 1))
sketch7.addConstraint(Sketcher.Constraint("Coincident", 39, 2, 40, 1))
sketch7.addConstraint(Sketcher.Constraint("Coincident", 40, 2, 41, 1))
sketch7.addConstraint(Sketcher.Constraint("Coincident", 41, 2, 36, 1))
sketch7.addConstraint(Sketcher.Constraint("Coincident", 42, 2, 43, 1))
sketch7.addConstraint(Sketcher.Constraint("Coincident", 43, 2, 44, 1))
sketch7.addConstraint(Sketcher.Constraint("Coincident", 44, 2, 45, 1))
sketch7.addConstraint(Sketcher.Constraint("Coincident", 45, 2, 46, 1))
sketch7.addConstraint(Sketcher.Constraint("Coincident", 46, 2, 47, 1))
sketch7.addConstraint(Sketcher.Constraint("Coincident", 47, 2, 42, 1))
sketch7.addConstraint(Sketcher.Constraint("Parallel", 0, 3))
sketch7.addConstraint(Sketcher.Constraint("Parallel", 1, 4))
sketch7.addConstraint(Sketcher.Constraint("Parallel", 2, 5))
sketch7.addConstraint(Sketcher.Constraint("Parallel", 6, 9))
sketch7.addConstraint(Sketcher.Constraint("Parallel", 7, 10))
sketch7.addConstraint(Sketcher.Constraint("Parallel", 8, 11))
sketch7.addConstraint(Sketcher.Constraint("Parallel", 12, 15))
sketch7.addConstraint(Sketcher.Constraint("Parallel", 13, 16))
sketch7.addConstraint(Sketcher.Constraint("Parallel", 14, 17))
sketch7.addConstraint(Sketcher.Constraint("Parallel", 18, 21))
sketch7.addConstraint(Sketcher.Constraint("Parallel", 19, 22))
sketch7.addConstraint(Sketcher.Constraint("Parallel", 20, 23))
sketch7.addConstraint(Sketcher.Constraint("Parallel", 24, 27))
sketch7.addConstraint(Sketcher.Constraint("Parallel", 25, 28))
sketch7.addConstraint(Sketcher.Constraint("Parallel", 26, 29))
sketch7.addConstraint(Sketcher.Constraint("Parallel", 30, 33))
sketch7.addConstraint(Sketcher.Constraint("Parallel", 31, 34))
sketch7.addConstraint(Sketcher.Constraint("Parallel", 32, 35))
sketch7.addConstraint(Sketcher.Constraint("Parallel", 36, 39))
sketch7.addConstraint(Sketcher.Constraint("Parallel", 37, 40))
sketch7.addConstraint(Sketcher.Constraint("Parallel", 38, 41))
sketch7.addConstraint(Sketcher.Constraint("Parallel", 42, 45))
sketch7.addConstraint(Sketcher.Constraint("Parallel", 43, 46))
sketch7.addConstraint(Sketcher.Constraint("Parallel", 44, 47))
sketch7.addConstraint(Sketcher.Constraint("Equal", 0, 1))
sketch7.addConstraint(Sketcher.Constraint("Equal", 1, 2))
sketch7.addConstraint(Sketcher.Constraint("Equal", 2, 3))
sketch7.addConstraint(Sketcher.Constraint("Equal", 5, 6))
sketch7.addConstraint(Sketcher.Constraint("Equal", 6, 7))
sketch7.addConstraint(Sketcher.Constraint("Equal", 7, 8))
sketch7.addConstraint(Sketcher.Constraint("Equal", 8, 9))
sketch7.addConstraint(Sketcher.Constraint("Equal", 11, 12))
sketch7.addConstraint(Sketcher.Constraint("Equal", 12, 13))
sketch7.addConstraint(Sketcher.Constraint("Equal", 13, 14))
sketch7.addConstraint(Sketcher.Constraint("Equal", 14, 15))
sketch7.addConstraint(Sketcher.Constraint("Equal", 17, 18))
sketch7.addConstraint(Sketcher.Constraint("Equal", 18, 19))
sketch7.addConstraint(Sketcher.Constraint("Equal", 19, 20))
sketch7.addConstraint(Sketcher.Constraint("Equal", 20, 21))
sketch7.addConstraint(Sketcher.Constraint("Equal", 23, 24))
sketch7.addConstraint(Sketcher.Constraint("Equal", 24, 25))
sketch7.addConstraint(Sketcher.Constraint("Equal", 25, 26))
sketch7.addConstraint(Sketcher.Constraint("Equal", 26, 27))
sketch7.addConstraint(Sketcher.Constraint("Equal", 29, 30))
sketch7.addConstraint(Sketcher.Constraint("Equal", 30, 31))
sketch7.addConstraint(Sketcher.Constraint("Equal", 31, 32))
sketch7.addConstraint(Sketcher.Constraint("Equal", 32, 33))
sketch7.addConstraint(Sketcher.Constraint("Equal", 35, 36))
sketch7.addConstraint(Sketcher.Constraint("Equal", 36, 37))
sketch7.addConstraint(Sketcher.Constraint("Equal", 37, 38))
sketch7.addConstraint(Sketcher.Constraint("Equal", 38, 39))
sketch7.addConstraint(Sketcher.Constraint("Equal", 41, 42))
sketch7.addConstraint(Sketcher.Constraint("Equal", 42, 43))
sketch7.addConstraint(Sketcher.Constraint("Equal", 43, 44))
sketch7.addConstraint(Sketcher.Constraint("Equal", 44, 45))
sketch7.addConstraint(Sketcher.Constraint("DistanceY", 19, 2, 22, 2, 5.553))
sketch7.addConstraint(Sketcher.Constraint("DistanceY", -1, 1, 4, 2, 8.7469))
sketch7.addConstraint(Sketcher.Constraint("DistanceX", -1, 1, 14, 2, 55.8193))
sketch7.addConstraint(Sketcher.Constraint("DistanceX", 27, 2, -1, 1, 30.6483))
sketch7.addConstraint(Sketcher.Constraint("DistanceX", -1, 1, 34, 2, 42.044402))
sketch7.addConstraint(Sketcher.Constraint("DistanceY", -1, 1, 34, 2, 13.430298))
sketch7.addConstraint(Sketcher.Constraint("DistanceY", 43, 2, -1, 1, 55.8871))
sketch7.addConstraint(Sketcher.Constraint("DistanceX", 2, 2, 6, 2, 108.414399))
sketch7.addConstraint(Sketcher.Constraint("DistanceX", 8, 2, 6, 2, 2.4722))
sketch7.addConstraint(Sketcher.Constraint("DistanceY", 7, 2, 9, 2, 0.3435))
sketch7.addConstraint(Sketcher.Constraint("DistanceX", 1, 2, 9, 2, 100.435298))
sketch7.addConstraint(Sketcher.Constraint("DistanceY", 11, 2, 8, 2, 6.396302))
sketch7.addConstraint(Sketcher.Constraint("DistanceX", 12, 2, 15, 2, 1.354501))
sketch7.addConstraint(Sketcher.Constraint("DistanceY", 20, 2, 21, 2, 2.7765))
sketch7.addConstraint(Sketcher.Constraint("DistanceX", 19, 2, 21, 2, 0.005201))
sketch7.addConstraint(Sketcher.Constraint("DistanceX", 1, 2, 24, 2, 9.075102))
sketch7.addConstraint(Sketcher.Constraint("DistanceX", 38, 2, 12, 2, 11.571502))
sketch7.addConstraint(Sketcher.Constraint("DistanceY", 38, 2, 39, 2, 1.132101))
sketch7.addConstraint(Sketcher.Constraint("DistanceY", 37, 2, 40, 2, 2.264202))
sketch7.addConstraint(Sketcher.Constraint("DistanceY", 42, 2, 44, 2, 3.307298))
sketch7.addConstraint(Sketcher.Constraint("DistanceY", -1, 1, 3, 2, 11.940942))
sketch7.addConstraint(Sketcher.Constraint("DistanceY", -1, 1, 5, 2, 6.928072))
sketch7.addConstraint(Sketcher.Constraint("DistanceY", -1, 1, 7, 2, 11.549439))
sketch7.addConstraint(Sketcher.Constraint("DistanceY", 12, 2, -1, 1, 49.745981))
sketch7.addConstraint(Sketcher.Constraint("DistanceX", -1, 1, 13, 2, 55.142049))
sketch7.addConstraint(Sketcher.Constraint("DistanceY", 13, 2, -1, 1, 51.89845))
sketch7.addConstraint(Sketcher.Constraint("DistanceX", 19, 2, -1, 1, 46.20747))
sketch7.addConstraint(Sketcher.Constraint("DistanceY", 20, 2, -1, 1, 52.880889))
sketch7.addConstraint(Sketcher.Constraint("DistanceX", 25, 2, -1, 1, 32.91212))
sketch7.addConstraint(Sketcher.Constraint("DistanceY", -1, 1, 25, 2, 7.37095))
sketch7.addConstraint(Sketcher.Constraint("DistanceY", -1, 1, 27, 2, 12.438259))
sketch7.addConstraint(Sketcher.Constraint("DistanceX", 28, 2, -1, 1, 33.573911))
sketch7.addConstraint(Sketcher.Constraint("DistanceX", -1, 1, 30, 2, 41.687891))
sketch7.addConstraint(Sketcher.Constraint("DistanceY", -1, 1, 30, 2, 7.89176))
sketch7.addConstraint(Sketcher.Constraint("DistanceY", -1, 1, 31, 2, 7.685929))
sketch7.addConstraint(Sketcher.Constraint("DistanceY", 36, 2, -1, 1, 56.47597))
sketch7.addConstraint(Sketcher.Constraint("DistanceX", 42, 2, -1, 1, 34.516749))
sketch7.addConstraint(Sketcher.Constraint("DistanceY", 45, 2, -1, 1, 50.373631))
sketch7.addConstraint(Sketcher.Constraint("DistanceX", 47, 2, -1, 1, 36.426219))
sketch7.addConstraint(Sketcher.Constraint("DistanceX", 3, 2, 2, 2, 2.894182))
sketch7.addConstraint(Sketcher.Constraint("DistanceX", 36, 2, 15, 2, 14.886858))
pocket6 = doc.addObject("PartDesign::Pocket", "Pocket005")
body.addObject(pocket6)
pocket6.Profile = sketch7
pocket6.Length = 2.4

# Sketch on XZ plane
sketch8 = doc.addObject("Sketcher::SketchObject", "Sketch007")
body.addObject(sketch8)
sketch8.AttachmentSupport = (doc.XZ_Plane, [""])
sketch8.MapMode = "FlatFace"
sketch8.AttachmentOffset = App.Placement(Vector(0, 0, -5.99), App.Rotation())
sketch8.addGeometry(Part.Circle(Vector(28.732984, -19.667887, 0), Vector(0, 0, 1), 2.75), False)
sketch8.addGeometry(Part.Circle(Vector(44.992984, -19.667887, 0), Vector(0, 0, 1), 2.75), False)
sketch8.addGeometry(Part.Circle(Vector(-17.305375, -3.407887, 0), Vector(0, 0, 1), 3), False)
sketch8.addGeometry(Part.Circle(Vector(-17.305375, -23.477887, 0), Vector(0, 0, 1), 3), False)
sketch8.addConstraint(Sketcher.Constraint("Equal", 0, 1))
sketch8.addConstraint(Sketcher.Constraint("Equal", 2, 3))
sketch8.addConstraint(Sketcher.Constraint("Horizontal", 0, 3, 1, 3))
sketch8.addConstraint(Sketcher.Constraint("Vertical", 2, 3, 3, 3))
sketch8.addConstraint(Sketcher.Constraint("Diameter", 2, 6.0))
sketch8.addConstraint(Sketcher.Constraint("Diameter", 0, 5.5))
sketch8.addConstraint(Sketcher.Constraint("DistanceX", 0, 3, 1, 3, 16.26))
sketch8.addConstraint(Sketcher.Constraint("DistanceY", 0, 3, 2, 3, 16.26))
sketch8.addConstraint(Sketcher.Constraint("DistanceY", 3, 3, 2, 3, 20.07))
sketch8.addConstraint(Sketcher.Constraint("DistanceX", 2, 3, 0, 3, 46.038359))
sketch8.addConstraint(Sketcher.Constraint("DistanceX", -1, 1, 0, 3, 28.732984))
sketch8.addConstraint(Sketcher.Constraint("DistanceY", 0, 3, -1, 1, 19.667887))
pocket7 = doc.addObject("PartDesign::Pocket", "Pocket006")
body.addObject(pocket7)
pocket7.Profile = sketch8
pocket7.Length = 5
pocket7.Reversed = True

# Sketch on XZ plane
sketch9 = doc.addObject("Sketcher::SketchObject", "Sketch008")
body.addObject(sketch9)
sketch9.AttachmentSupport = (doc.XZ_Plane, [""])
sketch9.MapMode = "FlatFace"
sketch9.AttachmentOffset = App.Placement(Vector(0, 0, -7.6), App.Rotation())
sketch9.addGeometry(Part.LineSegment(Vector(-37.807016, -57.877887, 0), Vector(-37.807016, 15.122113, 0)), False)
sketch9.addGeometry(Part.LineSegment(Vector(-37.807016, 15.122113, 0), Vector(48.192984, 15.122113, 0)), False)
sketch9.addGeometry(Part.LineSegment(Vector(48.192984, 15.122113, 0), Vector(48.192984, -57.877887, 0)), False)
sketch9.addGeometry(Part.LineSegment(Vector(48.192984, -57.877887, 0), Vector(-37.807016, -57.877887, 0)), False)
sketch9.addConstraint(Sketcher.Constraint("Coincident", 0, 2, 1, 1))
sketch9.addConstraint(Sketcher.Constraint("Coincident", 1, 2, 2, 1))
sketch9.addConstraint(Sketcher.Constraint("Coincident", 2, 2, 3, 1))
sketch9.addConstraint(Sketcher.Constraint("Coincident", 3, 2, 0, 1))
sketch9.addConstraint(Sketcher.Constraint("Vertical", 0))
sketch9.addConstraint(Sketcher.Constraint("Horizontal", 1))
sketch9.addConstraint(Sketcher.Constraint("Vertical", 2))
sketch9.addConstraint(Sketcher.Constraint("Horizontal", 3))
sketch9.addConstraint(Sketcher.Constraint("DistanceX", 1, 1, 1, 2, 86.0))
sketch9.addConstraint(Sketcher.Constraint("DistanceY", 0, 1, 0, 2, 73.0))
sketch9.addConstraint(Sketcher.Constraint("DistanceX", 0, 2, -1, 1, 37.807016))
sketch9.addConstraint(Sketcher.Constraint("DistanceY", -1, 1, 0, 2, 15.122113))
pocket8 = doc.addObject("PartDesign::Pocket", "Pocket007")
body.addObject(pocket8)
pocket8.Profile = sketch9
pocket8.Length = 1.61
pocket8.Reversed = True

doc.recompute()
